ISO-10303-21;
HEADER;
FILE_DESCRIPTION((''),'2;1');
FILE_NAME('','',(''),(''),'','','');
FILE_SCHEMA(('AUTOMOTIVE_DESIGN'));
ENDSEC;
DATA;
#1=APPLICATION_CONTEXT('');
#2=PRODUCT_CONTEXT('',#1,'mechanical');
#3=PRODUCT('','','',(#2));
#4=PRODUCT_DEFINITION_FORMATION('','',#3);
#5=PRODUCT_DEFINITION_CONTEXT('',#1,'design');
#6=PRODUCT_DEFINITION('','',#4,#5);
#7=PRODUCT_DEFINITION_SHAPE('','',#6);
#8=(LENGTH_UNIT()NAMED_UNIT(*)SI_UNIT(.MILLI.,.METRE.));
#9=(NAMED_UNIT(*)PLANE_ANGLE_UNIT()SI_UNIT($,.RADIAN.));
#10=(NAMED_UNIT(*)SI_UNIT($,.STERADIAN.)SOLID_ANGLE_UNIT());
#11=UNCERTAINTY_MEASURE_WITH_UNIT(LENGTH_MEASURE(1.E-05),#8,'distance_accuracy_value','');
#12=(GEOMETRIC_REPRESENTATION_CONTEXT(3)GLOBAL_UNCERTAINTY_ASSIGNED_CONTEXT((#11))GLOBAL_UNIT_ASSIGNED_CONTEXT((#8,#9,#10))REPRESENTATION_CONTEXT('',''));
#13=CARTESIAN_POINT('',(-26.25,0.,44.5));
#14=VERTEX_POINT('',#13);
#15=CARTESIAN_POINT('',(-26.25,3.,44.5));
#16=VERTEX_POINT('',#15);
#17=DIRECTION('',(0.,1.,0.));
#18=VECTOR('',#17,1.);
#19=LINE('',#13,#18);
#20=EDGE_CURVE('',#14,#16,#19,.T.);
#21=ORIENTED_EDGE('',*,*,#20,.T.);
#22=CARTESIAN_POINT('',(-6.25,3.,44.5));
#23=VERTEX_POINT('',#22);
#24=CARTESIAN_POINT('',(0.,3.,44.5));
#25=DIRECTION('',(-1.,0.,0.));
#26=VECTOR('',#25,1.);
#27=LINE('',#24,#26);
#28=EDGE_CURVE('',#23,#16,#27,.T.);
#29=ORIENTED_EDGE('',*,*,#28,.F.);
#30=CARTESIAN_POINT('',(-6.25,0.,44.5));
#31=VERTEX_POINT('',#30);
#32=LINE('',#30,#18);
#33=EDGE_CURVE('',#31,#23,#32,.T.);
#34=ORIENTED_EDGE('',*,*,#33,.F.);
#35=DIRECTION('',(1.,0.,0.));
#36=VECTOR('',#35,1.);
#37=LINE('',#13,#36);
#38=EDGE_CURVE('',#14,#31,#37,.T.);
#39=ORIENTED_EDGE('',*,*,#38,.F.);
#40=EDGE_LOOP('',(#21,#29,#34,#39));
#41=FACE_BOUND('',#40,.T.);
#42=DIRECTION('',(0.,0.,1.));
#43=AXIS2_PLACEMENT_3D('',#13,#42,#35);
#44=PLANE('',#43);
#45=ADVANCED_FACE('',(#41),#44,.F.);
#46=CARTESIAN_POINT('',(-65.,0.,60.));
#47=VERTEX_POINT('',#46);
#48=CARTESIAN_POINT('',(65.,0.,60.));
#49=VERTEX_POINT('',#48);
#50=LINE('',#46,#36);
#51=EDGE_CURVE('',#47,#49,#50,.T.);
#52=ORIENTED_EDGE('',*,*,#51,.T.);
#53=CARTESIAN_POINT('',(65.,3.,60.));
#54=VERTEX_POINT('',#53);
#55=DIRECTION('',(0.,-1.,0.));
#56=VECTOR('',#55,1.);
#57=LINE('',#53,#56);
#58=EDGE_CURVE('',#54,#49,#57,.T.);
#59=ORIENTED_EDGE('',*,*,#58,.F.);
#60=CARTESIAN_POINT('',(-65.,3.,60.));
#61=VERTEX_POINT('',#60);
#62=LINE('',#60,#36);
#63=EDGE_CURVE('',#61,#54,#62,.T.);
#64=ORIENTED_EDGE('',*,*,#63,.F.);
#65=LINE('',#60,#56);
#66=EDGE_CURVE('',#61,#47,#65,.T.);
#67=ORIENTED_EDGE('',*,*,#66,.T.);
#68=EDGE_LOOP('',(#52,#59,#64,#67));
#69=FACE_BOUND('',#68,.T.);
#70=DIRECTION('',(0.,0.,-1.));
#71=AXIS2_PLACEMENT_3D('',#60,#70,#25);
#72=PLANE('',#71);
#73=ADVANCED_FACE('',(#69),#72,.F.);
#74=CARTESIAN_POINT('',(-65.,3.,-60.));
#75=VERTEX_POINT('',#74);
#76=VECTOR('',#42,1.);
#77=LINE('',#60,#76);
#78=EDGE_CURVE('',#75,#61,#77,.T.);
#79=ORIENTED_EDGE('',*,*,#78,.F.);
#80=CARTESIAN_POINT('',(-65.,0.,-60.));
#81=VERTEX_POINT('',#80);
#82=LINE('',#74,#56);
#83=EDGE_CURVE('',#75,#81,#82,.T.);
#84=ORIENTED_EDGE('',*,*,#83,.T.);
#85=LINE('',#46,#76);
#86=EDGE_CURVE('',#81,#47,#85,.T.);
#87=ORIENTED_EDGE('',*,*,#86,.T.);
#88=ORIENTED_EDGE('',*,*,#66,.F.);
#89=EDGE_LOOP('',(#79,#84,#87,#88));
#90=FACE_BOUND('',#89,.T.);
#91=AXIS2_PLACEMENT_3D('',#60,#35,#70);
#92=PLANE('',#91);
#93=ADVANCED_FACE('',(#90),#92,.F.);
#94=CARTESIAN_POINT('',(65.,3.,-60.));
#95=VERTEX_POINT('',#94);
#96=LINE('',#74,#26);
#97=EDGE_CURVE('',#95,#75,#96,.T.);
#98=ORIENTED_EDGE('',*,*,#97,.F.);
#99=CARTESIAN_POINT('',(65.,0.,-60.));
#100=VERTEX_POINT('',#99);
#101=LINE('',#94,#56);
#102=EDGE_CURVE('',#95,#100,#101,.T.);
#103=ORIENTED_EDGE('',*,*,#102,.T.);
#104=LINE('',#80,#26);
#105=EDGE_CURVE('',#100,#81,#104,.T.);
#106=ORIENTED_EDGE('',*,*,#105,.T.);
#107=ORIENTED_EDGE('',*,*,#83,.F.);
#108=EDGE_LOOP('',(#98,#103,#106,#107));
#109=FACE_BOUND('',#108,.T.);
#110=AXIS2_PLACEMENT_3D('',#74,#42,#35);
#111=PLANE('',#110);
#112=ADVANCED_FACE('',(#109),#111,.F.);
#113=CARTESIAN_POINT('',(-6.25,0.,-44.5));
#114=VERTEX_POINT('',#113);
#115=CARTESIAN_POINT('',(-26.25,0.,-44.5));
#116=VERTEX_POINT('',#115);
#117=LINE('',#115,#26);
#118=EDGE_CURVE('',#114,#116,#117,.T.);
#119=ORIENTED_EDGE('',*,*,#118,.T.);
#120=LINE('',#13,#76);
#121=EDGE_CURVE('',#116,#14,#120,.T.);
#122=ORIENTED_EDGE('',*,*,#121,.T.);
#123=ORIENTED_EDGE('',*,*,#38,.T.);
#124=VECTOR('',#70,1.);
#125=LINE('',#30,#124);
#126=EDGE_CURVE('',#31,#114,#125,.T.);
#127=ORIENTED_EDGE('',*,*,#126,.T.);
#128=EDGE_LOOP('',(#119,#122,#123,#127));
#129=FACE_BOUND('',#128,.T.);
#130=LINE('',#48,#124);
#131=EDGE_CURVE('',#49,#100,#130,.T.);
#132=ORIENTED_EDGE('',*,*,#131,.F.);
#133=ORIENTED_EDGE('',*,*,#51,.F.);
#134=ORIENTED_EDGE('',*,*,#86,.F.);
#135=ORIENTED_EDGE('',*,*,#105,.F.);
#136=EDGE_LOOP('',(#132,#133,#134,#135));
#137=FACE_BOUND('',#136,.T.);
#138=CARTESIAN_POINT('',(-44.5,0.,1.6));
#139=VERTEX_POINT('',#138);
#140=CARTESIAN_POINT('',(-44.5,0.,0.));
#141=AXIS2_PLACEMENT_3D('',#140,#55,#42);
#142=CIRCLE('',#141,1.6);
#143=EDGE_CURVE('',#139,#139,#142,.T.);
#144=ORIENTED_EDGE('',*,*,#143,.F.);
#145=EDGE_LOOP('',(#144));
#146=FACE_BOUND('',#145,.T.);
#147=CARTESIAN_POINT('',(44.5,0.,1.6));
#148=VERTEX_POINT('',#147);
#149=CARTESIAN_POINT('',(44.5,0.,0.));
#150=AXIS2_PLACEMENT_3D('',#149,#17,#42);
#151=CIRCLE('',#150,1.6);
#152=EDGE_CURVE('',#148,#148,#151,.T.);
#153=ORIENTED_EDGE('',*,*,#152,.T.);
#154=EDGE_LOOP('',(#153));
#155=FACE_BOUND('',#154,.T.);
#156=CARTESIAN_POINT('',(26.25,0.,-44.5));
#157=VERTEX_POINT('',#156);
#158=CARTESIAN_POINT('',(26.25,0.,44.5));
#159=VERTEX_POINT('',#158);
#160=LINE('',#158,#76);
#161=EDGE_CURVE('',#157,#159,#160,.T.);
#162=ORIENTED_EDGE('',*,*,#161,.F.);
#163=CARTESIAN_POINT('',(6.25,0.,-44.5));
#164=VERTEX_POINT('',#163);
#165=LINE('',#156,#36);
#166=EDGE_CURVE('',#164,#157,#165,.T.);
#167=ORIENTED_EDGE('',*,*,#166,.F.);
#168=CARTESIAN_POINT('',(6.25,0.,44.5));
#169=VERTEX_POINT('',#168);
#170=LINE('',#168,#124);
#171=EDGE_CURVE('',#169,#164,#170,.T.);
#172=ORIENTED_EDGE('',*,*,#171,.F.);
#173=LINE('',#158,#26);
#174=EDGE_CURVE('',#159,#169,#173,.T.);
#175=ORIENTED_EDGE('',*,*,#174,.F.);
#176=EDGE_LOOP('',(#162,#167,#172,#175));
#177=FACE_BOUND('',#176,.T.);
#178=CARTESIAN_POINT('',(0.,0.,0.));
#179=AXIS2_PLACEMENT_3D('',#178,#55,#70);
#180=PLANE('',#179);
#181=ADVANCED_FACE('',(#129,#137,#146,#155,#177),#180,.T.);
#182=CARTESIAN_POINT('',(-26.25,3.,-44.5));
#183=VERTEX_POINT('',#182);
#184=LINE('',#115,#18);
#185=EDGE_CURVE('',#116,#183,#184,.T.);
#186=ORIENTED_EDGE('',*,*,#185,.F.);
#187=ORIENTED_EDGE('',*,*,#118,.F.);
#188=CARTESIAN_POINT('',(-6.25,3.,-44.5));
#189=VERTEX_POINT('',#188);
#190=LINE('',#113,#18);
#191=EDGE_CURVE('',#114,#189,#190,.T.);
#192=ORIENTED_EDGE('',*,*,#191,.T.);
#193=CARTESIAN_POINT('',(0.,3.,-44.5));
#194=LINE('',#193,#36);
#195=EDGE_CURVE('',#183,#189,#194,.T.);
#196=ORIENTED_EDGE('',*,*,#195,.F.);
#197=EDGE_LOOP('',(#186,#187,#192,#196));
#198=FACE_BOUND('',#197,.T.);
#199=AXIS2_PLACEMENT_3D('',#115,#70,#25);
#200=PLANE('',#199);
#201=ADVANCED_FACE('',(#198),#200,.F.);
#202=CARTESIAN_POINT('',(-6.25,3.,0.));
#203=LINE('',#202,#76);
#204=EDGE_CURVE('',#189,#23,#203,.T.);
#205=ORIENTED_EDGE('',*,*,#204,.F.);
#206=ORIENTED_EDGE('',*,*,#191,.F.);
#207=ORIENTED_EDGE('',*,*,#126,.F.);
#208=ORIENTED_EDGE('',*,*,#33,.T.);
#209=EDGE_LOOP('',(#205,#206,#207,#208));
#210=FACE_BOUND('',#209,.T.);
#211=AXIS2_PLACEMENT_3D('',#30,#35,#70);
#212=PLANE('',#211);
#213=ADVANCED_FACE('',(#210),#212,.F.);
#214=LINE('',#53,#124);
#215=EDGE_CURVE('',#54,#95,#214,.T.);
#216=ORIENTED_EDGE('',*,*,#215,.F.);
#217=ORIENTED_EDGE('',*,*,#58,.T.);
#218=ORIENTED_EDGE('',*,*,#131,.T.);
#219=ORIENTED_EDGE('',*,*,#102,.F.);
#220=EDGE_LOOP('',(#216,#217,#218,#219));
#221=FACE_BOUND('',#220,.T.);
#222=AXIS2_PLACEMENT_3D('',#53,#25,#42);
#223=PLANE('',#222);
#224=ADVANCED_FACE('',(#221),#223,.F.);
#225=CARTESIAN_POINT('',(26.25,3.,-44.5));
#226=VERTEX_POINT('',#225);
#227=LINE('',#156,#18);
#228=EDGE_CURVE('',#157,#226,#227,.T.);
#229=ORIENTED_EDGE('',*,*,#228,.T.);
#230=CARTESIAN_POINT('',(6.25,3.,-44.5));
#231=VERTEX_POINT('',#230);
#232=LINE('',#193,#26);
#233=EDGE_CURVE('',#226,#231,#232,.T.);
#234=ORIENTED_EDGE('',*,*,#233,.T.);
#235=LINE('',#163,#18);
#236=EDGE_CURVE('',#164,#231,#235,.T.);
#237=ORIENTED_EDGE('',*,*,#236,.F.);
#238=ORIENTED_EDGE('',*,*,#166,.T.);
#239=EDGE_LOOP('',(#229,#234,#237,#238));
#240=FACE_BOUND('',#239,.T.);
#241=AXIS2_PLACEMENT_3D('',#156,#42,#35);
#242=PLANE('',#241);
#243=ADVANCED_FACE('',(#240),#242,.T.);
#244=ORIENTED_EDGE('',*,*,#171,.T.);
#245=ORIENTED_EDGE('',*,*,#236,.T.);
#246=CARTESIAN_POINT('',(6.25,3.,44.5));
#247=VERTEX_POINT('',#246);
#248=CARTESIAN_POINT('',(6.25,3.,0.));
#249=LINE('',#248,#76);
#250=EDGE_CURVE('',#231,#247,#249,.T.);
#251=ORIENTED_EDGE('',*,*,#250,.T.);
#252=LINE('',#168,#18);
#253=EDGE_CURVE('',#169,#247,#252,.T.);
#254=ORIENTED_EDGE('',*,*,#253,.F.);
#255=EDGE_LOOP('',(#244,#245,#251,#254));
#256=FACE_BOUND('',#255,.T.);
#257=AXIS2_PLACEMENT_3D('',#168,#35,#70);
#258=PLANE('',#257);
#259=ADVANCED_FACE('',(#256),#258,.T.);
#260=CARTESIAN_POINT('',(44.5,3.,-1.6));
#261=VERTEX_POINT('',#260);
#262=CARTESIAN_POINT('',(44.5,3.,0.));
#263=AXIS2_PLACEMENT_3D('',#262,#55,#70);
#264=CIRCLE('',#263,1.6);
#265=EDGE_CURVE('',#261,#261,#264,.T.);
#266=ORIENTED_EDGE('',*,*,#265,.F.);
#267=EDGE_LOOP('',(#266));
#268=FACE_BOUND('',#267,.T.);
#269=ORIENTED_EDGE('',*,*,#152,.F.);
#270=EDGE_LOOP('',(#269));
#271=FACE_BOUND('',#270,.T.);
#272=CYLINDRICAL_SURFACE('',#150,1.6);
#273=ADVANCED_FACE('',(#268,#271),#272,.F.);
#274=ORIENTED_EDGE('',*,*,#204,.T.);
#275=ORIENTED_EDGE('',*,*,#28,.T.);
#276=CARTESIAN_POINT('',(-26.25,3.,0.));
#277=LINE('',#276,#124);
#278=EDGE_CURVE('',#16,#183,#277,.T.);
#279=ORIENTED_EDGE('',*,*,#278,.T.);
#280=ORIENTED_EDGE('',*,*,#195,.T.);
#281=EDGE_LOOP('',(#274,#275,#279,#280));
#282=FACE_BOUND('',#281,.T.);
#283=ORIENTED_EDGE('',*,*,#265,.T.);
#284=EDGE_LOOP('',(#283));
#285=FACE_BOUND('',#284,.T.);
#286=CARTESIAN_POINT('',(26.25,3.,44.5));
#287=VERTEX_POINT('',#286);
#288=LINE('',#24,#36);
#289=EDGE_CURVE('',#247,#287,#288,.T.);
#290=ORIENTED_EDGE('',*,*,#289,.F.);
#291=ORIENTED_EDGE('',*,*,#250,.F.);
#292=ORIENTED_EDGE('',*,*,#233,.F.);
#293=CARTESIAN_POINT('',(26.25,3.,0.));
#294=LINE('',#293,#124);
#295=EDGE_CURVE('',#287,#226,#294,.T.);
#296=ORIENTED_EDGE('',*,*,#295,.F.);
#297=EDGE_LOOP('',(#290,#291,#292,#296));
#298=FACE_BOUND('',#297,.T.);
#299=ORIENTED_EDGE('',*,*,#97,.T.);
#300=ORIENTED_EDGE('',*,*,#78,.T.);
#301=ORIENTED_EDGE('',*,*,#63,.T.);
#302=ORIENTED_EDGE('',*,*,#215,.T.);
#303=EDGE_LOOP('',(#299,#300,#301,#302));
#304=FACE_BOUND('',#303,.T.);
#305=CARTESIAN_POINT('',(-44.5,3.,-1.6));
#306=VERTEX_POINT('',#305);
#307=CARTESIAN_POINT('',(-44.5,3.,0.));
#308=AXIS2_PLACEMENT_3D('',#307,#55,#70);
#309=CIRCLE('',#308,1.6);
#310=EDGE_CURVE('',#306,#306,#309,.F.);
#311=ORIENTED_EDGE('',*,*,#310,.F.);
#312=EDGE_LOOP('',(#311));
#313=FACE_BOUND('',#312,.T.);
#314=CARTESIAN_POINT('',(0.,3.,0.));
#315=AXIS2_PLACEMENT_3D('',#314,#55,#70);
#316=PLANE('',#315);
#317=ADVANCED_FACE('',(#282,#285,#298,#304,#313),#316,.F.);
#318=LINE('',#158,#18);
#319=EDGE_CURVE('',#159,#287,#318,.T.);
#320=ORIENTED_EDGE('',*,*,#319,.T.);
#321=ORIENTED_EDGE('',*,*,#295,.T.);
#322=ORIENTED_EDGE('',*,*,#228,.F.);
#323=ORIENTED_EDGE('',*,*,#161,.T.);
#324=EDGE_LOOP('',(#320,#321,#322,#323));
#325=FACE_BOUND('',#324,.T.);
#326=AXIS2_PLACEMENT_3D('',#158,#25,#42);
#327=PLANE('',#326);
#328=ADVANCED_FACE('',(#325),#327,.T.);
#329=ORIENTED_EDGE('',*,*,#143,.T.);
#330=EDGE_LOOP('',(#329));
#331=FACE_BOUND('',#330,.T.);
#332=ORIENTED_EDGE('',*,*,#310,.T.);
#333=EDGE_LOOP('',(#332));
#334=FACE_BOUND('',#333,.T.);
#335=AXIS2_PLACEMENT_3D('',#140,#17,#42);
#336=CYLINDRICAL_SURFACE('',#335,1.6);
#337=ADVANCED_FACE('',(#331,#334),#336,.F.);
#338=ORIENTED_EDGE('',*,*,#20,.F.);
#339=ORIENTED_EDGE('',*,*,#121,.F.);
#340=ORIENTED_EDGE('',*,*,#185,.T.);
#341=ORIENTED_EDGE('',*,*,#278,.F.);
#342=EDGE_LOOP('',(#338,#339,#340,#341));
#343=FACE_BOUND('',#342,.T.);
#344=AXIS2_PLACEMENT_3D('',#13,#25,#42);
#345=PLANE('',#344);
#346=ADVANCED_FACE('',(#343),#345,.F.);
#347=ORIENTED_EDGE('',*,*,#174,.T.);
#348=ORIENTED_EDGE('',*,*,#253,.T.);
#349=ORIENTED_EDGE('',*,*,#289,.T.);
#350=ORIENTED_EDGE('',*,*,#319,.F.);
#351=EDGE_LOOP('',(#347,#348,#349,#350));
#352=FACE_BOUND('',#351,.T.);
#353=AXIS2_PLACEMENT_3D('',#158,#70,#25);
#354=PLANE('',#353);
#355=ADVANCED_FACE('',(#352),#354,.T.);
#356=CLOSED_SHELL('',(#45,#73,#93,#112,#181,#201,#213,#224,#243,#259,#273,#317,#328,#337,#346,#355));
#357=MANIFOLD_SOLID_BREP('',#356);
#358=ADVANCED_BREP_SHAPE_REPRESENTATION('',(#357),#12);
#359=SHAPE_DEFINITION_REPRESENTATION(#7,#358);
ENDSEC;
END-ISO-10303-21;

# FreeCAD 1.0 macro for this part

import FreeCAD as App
import Part
import Sketcher


def add_polygon(sketch, points):
    """Adds a closed chain of lines whose ends are joined by coincident constraints."""
    first, n = sketch.GeometryCount, len(points)
    for a, b in zip(points, points[1:] + points[:1]):
        sketch.addGeometry(Part.LineSegment(App.Vector(*a, 0), App.Vector(*b, 0)), False)
    for i in range(n):
        sketch.addConstraint(Sketcher.Constraint("Coincident", first + i, 2, first + (i + 1) % n, 1))

doc = App.newDocument("Part")
body = doc.addObject("PartDesign::Body", "Body")

sketch1 = doc.addObject("Sketcher::SketchObject", "Sketch")
body.addObject(sketch1)
sketch1.AttachmentSupport = (doc.XZ_Plane, [""])
sketch1.MapMode = "FlatFace"
add_polygon(sketch1, [(-65, -60), (-65, 60), (65, 60), (65, -60)])
sketch1.addConstraint(Sketcher.Constraint("Vertical", 0))
sketch1.addConstraint(Sketcher.Constraint("Horizontal", 1))
sketch1.addConstraint(Sketcher.Constraint("Vertical", 2))
sketch1.addConstraint(Sketcher.Constraint("Horizontal", 3))
sketch1.addConstraint(Sketcher.Constraint("Symmetric", 0, 2, 2, 2, -1, 1))
sketch1.addConstraint(Sketcher.Constraint("DistanceX", 1, 1, 1, 2, 130.0))
sketch1.addConstraint(Sketcher.Constraint("DistanceY", 0, 1, 0, 2, 120.0))
pad1 = doc.addObject("PartDesign::Pad", "Pad")
body.addObject(pad1)
pad1.Profile = sketch1
pad1.Length = 3
pad1.Reversed = True

sketch2 = doc.addObject("Sketcher::SketchObject", "Sketch001")
body.addObject(sketch2)
sketch2.AttachmentSupport = (doc.XZ_Plane, [""])
sketch2.MapMode = "FlatFace"
sketch2.AttachmentOffset = App.Placement(App.Vector(0, 0, 1), App.Rotation())
add_polygon(sketch2, [(-26, -44), (-26, 44), (-6, 44), (-6, -44)])
sketch2.addConstraint(Sketcher.Constraint("Vertical", 0))
sketch2.addConstraint(Sketcher.Constraint("Horizontal", 1))
sketch2.addConstraint(Sketcher.Constraint("Vertical", 2))
sketch2.addConstraint(Sketcher.Constraint("Horizontal", 3))
sketch2.addConstraint(Sketcher.Constraint("DistanceX", 1, 1, 1, 2, 20.0))
sketch2.addConstraint(Sketcher.Constraint("DistanceY", 0, 1, 0, 2, 89.0))
sketch2.addConstraint(Sketcher.Constraint("DistanceY", -1, 1, 0, 2, 44.5))
sketch2.addConstraint(Sketcher.Constraint("DistanceX", 0, 2, -1, 1, 26.25))
pocket1 = doc.addObject("PartDesign::Pocket", "Pocket")
body.addObject(pocket1)
pocket1.Profile = sketch2
pocket1.Length = 5
doc.recompute()

mirrored = doc.addObject("PartDesign::Mirrored", "Mirrored")
body.addObject(mirrored)
mirrored.Originals = [pocket1]
mirrored.MirrorPlane = (doc.YZ_Plane, [""])
body.Tip = mirrored

sketch3 = doc.addObject("Sketcher::SketchObject", "Sketch002")
body.addObject(sketch3)
sketch3.AttachmentSupport = (doc.XZ_Plane, [""])
sketch3.MapMode = "FlatFace"
sketch3.AttachmentOffset = App.Placement(App.Vector(0, 0, 1), App.Rotation())
sketch3.addGeometry(Part.Circle(App.Vector(44.5, 0, 0), App.Vector(0, 0, 1), 1.6), False)
sketch3.addConstraint(Sketcher.Constraint("PointOnObject", 0, 3, -1))
sketch3.addConstraint(Sketcher.Constraint("Diameter", 0, 3.2))
sketch3.addConstraint(Sketcher.Constraint("DistanceX", -1, 1, 0, 3, 44.5))
pocket2 = doc.addObject("PartDesign::Pocket", "Pocket001")
body.addObject(pocket2)
pocket2.Profile = sketch3
pocket2.Length = 5
doc.recompute()

mirrored2 = doc.addObject("PartDesign::Mirrored", "Mirrored001")
body.addObject(mirrored2)
mirrored2.Originals = [pocket2]
mirrored2.MirrorPlane = (doc.YZ_Plane, [""])
body.Tip = mirrored2

doc.recompute()
